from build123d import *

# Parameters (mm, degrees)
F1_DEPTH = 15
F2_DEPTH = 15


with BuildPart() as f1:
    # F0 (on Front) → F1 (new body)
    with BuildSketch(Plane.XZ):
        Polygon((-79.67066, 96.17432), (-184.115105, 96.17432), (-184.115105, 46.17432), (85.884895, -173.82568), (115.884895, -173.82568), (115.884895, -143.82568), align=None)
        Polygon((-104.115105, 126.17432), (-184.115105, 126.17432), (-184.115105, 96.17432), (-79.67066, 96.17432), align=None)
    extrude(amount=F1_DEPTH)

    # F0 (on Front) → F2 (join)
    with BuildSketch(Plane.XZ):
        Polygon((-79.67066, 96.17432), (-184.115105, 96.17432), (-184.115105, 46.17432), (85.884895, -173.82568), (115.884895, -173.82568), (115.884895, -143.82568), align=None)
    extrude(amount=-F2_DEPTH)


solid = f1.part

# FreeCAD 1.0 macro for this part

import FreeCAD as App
import Part
import Sketcher


def add_polygon(sketch, points):
    """Adds a closed chain of lines whose ends are joined by coincident constraints."""
    first, n = sketch.GeometryCount, len(points)
    for a, b in zip(points, points[1:] + points[:1]):
        sketch.addGeometry(Part.LineSegment(App.Vector(*a, 0), App.Vector(*b, 0)), False)
    for i in range(n):
        sketch.addConstraint(Sketcher.Constraint("Coincident", first + i, 2, first + (i + 1) % n, 1))

doc = App.newDocument("Part")
body = doc.addObject("PartDesign::Body", "Body")

sketch1 = doc.addObject("Sketcher::SketchObject", "Sketch")
body.addObject(sketch1)
sketch1.AttachmentSupport = (doc.XZ_Plane, [""])
sketch1.MapMode = "FlatFace"
add_polygon(sketch1, [(-184.115105, 46.17432), (85.884895, -173.82568), (115.884895, -173.82568), (115.884895, -143.82568), (-79.67066, 96.17432), (-104.115105, 126.17432), (-184.115105, 126.17432)])
sketch1.addConstraint([
    Sketcher.Constraint("Horizontal", 1),
    Sketcher.Constraint("Vertical", 2),
    Sketcher.Constraint("Horizontal", 5),
    Sketcher.Constraint("Vertical", 6),
    Sketcher.Constraint("Parallel", 3, 4),
    Sketcher.Constraint("Equal", 1, 2),
    Sketcher.Constraint("Equal", 5, 6),
    Sketcher.Constraint("DistanceX", 1, 1, 1, 2, 30.0),
    Sketcher.Constraint("DistanceX", 5, 2, 5, 1, 80.0),
    Sketcher.Constraint("DistanceY", 2, 2, 3, 2, 240.0),
    Sketcher.Constraint("DistanceY", 3, 2, 4, 2, 30.0),
    Sketcher.Constraint("DistanceX", 4, 2, 2, 2, 220.0),
    Sketcher.Constraint("DistanceY", 0, 2, -1, 1, 173.82568),
    Sketcher.Constraint("DistanceX", 3, 2, -1, 1, 79.67066),
])
pad1 = doc.addObject("PartDesign::Pad", "Pad")
body.addObject(pad1)
pad1.Profile = sketch1
pad1.Length = 15

sketch2 = doc.addObject("Sketcher::SketchObject", "Sketch001")
body.addObject(sketch2)
sketch2.AttachmentSupport = (doc.XZ_Plane, [""])
sketch2.MapMode = "FlatFace"
add_polygon(sketch2, [(-79.67066, 96.17432), (-184.115105, 96.17432), (-184.115105, 46.17432), (85.884895, -173.82568), (115.884895, -173.82568), (115.884895, -143.82568)])
sketch2.addConstraint([
    Sketcher.Constraint("Horizontal", 0),
    Sketcher.Constraint("Vertical", 1),
    Sketcher.Constraint("Horizontal", 3),
    Sketcher.Constraint("Vertical", 4),
    Sketcher.Constraint("Equal", 3, 4),
    Sketcher.Constraint("DistanceX", 3, 1, 3, 2, 30.0),
    Sketcher.Constraint("DistanceY", 1, 2, 1, 1, 50.0),
    Sketcher.Constraint("DistanceX", 1, 2, 2, 2, 270.0),
    Sketcher.Constraint("DistanceY", 2, 2, 1, 2, 220.0),
    Sketcher.Constraint("Distance", 5, 309.583551),
    Sketcher.Constraint("DistanceY", -1, 1, 0, 2, 96.17432),
    Sketcher.Constraint("DistanceX", 5, 2, -1, 1, 79.67066),
])
pad2 = doc.addObject("PartDesign::Pad", "Pad001")
body.addObject(pad2)
pad2.Profile = sketch2
pad2.Length = 15
pad2.Reversed = True

doc.recompute()
